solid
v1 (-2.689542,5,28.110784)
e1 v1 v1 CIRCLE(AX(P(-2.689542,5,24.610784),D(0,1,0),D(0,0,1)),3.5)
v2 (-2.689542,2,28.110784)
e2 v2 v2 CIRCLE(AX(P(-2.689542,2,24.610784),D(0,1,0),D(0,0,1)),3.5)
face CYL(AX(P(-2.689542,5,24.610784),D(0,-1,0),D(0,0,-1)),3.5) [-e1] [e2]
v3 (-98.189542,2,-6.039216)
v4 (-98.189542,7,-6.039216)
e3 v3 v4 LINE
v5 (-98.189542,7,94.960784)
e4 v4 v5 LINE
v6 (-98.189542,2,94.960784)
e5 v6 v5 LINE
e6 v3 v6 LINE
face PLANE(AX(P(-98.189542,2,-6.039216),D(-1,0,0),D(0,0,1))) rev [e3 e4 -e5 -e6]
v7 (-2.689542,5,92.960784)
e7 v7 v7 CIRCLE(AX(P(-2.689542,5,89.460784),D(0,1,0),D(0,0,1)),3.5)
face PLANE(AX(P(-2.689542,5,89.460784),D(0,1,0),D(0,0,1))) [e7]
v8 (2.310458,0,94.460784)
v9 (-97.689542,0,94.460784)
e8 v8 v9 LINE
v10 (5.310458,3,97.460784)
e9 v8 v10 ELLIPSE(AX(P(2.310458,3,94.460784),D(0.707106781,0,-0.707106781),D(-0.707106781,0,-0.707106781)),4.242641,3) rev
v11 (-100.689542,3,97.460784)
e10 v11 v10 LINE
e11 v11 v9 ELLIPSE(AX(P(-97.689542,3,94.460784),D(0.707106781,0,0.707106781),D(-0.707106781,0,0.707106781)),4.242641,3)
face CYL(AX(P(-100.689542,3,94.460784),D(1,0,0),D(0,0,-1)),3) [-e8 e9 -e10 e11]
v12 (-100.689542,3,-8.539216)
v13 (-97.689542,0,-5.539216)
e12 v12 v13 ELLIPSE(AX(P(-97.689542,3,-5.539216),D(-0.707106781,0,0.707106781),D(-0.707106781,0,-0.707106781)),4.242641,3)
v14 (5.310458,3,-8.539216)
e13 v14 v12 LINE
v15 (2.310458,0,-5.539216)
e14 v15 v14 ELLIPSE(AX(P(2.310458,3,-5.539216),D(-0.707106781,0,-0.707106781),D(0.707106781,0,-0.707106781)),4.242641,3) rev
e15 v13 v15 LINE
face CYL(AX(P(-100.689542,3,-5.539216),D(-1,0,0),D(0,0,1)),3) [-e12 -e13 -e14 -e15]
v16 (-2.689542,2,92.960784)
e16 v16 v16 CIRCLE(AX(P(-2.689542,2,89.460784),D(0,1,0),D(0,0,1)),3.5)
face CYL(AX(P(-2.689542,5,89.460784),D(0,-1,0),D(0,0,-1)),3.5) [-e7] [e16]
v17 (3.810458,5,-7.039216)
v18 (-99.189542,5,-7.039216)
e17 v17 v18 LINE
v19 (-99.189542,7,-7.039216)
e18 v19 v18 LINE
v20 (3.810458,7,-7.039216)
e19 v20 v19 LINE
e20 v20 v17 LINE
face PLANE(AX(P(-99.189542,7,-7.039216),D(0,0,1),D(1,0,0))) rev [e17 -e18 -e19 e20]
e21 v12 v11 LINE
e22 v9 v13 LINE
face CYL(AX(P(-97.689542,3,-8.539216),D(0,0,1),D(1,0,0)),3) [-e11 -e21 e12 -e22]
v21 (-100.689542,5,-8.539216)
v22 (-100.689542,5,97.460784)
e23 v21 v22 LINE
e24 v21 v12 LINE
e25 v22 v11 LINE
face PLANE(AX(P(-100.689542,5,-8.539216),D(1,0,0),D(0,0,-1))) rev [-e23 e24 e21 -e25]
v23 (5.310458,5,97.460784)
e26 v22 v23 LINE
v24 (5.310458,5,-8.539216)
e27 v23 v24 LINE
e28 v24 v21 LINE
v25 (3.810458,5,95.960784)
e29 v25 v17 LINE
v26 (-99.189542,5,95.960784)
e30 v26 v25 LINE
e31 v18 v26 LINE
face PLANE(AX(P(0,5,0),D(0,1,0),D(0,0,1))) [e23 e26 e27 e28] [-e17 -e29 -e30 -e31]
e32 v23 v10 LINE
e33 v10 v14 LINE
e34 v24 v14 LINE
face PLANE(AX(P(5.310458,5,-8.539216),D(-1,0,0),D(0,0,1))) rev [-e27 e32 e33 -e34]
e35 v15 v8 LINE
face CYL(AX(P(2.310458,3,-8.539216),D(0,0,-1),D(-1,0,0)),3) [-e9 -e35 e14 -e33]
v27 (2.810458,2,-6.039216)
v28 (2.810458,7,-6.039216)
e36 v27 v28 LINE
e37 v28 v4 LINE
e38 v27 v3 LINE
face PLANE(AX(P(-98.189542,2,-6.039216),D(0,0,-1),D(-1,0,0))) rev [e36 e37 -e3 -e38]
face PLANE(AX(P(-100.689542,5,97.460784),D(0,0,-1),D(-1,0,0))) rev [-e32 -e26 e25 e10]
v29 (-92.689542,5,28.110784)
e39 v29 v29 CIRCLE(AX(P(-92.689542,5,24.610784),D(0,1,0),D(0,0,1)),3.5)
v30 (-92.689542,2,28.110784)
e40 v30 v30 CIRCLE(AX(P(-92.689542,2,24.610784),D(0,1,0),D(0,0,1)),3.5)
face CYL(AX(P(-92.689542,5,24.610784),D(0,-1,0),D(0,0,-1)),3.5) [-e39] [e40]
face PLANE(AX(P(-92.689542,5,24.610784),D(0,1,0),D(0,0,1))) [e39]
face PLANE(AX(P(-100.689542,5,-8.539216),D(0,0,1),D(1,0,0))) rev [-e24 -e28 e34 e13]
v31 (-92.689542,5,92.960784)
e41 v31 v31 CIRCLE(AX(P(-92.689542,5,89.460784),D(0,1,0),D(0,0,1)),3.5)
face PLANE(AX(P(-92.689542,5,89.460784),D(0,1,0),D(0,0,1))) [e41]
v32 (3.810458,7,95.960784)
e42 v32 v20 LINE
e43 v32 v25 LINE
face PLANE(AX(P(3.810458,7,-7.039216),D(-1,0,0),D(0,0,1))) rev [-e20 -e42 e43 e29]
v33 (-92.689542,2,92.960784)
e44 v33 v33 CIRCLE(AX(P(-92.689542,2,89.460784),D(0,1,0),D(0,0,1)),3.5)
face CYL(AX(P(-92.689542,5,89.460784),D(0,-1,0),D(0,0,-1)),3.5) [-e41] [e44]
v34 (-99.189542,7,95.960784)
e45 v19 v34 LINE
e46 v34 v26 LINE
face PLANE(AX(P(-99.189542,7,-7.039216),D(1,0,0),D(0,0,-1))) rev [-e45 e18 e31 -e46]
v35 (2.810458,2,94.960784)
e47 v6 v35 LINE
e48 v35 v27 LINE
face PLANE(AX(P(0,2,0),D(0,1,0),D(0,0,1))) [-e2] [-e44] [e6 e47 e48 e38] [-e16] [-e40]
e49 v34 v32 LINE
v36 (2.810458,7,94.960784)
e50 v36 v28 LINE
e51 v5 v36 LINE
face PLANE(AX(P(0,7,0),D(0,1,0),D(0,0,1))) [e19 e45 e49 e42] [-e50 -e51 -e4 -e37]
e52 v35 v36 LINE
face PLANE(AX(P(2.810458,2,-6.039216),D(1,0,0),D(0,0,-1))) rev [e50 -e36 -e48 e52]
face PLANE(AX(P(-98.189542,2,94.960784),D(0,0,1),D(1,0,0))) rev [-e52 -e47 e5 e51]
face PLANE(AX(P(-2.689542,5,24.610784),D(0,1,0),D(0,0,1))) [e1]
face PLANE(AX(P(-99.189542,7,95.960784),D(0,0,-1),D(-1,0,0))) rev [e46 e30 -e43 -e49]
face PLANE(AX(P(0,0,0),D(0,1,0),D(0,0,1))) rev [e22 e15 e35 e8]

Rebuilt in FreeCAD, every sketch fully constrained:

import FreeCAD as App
import Part
import Sketcher

V = App.Vector
Q = App.Units.Quantity


def edges_at(feature, points):
    """Names of the edges that pass closest to the given points."""
    edges = feature.Shape.Edges
    near = lambda p: min(range(len(edges)), key=lambda i: edges[i].distToShape(Part.Vertex(*p))[0])
    return sorted({f"Edge{near(p) + 1}" for p in points})

doc = App.newDocument("Part")
body = doc.addObject("PartDesign::Body", "Body")

# Sketch on XZ plane
sketch1 = doc.addObject("Sketcher::SketchObject", "Sketch")
body.addObject(sketch1)
sketch1.AttachmentSupport = (doc.XZ_Plane, [""])
sketch1.MapMode = "FlatFace"
sketch1.addGeometry(Part.LineSegment(V(-101, -9, 0), V(-101, 97, 0)), False)
sketch1.addGeometry(Part.LineSegment(V(-101, 97, 0), V(5, 97, 0)), False)
sketch1.addGeometry(Part.LineSegment(V(5, 97, 0), V(5, -9, 0)), False)
sketch1.addGeometry(Part.LineSegment(V(5, -9, 0), V(-101, -9, 0)), False)
sketch1.addConstraint(Sketcher.Constraint("Coincident", 0, 2, 1, 1))
sketch1.addConstraint(Sketcher.Constraint("Coincident", 1, 2, 2, 1))
sketch1.addConstraint(Sketcher.Constraint("Coincident", 2, 2, 3, 1))
sketch1.addConstraint(Sketcher.Constraint("Coincident", 3, 2, 0, 1))
sketch1.addConstraint(Sketcher.Constraint("Vertical", 0))
sketch1.addConstraint(Sketcher.Constraint("Horizontal", 1))
sketch1.addConstraint(Sketcher.Constraint("Vertical", 2))
sketch1.addConstraint(Sketcher.Constraint("Horizontal", 3))
sketch1.addConstraint(Sketcher.Constraint("Equal", 3, 0))
sketch1.addConstraint(Sketcher.Constraint("DistanceX", 1, 1, 1, 2, Q("106 mm")))
sketch1.addConstraint(Sketcher.Constraint("DistanceX", 0, 2, -1, 1, Q("100.689542 mm")))
sketch1.addConstraint(Sketcher.Constraint("DistanceY", -1, 1, 0, 2, Q("97.460784 mm")))
pad1 = doc.addObject("PartDesign::Pad", "Pad")
body.addObject(pad1)
pad1.Profile = sketch1
pad1.Length = 5
pad1.Reversed = True

# Sketch on XZ plane
sketch2 = doc.addObject("Sketcher::SketchObject", "Sketch001")
body.addObject(sketch2)
sketch2.AttachmentSupport = (doc.XZ_Plane, [""])
sketch2.MapMode = "FlatFace"
sketch2.AttachmentOffset = App.Placement(V(0, 0, -5), App.Rotation())
sketch2.addGeometry(Part.LineSegment(V(-98, -6, 0), V(-98, 95, 0)), False)
sketch2.addGeometry(Part.LineSegment(V(-98, 95, 0), V(3, 95, 0)), False)
sketch2.addGeometry(Part.LineSegment(V(3, 95, 0), V(3, -6, 0)), False)
sketch2.addGeometry(Part.LineSegment(V(3, -6, 0), V(-98, -6, 0)), False)
sketch2.addConstraint(Sketcher.Constraint("Coincident", 0, 2, 1, 1))
sketch2.addConstraint(Sketcher.Constraint("Coincident", 1, 2, 2, 1))
sketch2.addConstraint(Sketcher.Constraint("Coincident", 2, 2, 3, 1))
sketch2.addConstraint(Sketcher.Constraint("Coincident", 3, 2, 0, 1))
sketch2.addConstraint(Sketcher.Constraint("Vertical", 0))
sketch2.addConstraint(Sketcher.Constraint("Horizontal", 1))
sketch2.addConstraint(Sketcher.Constraint("Vertical", 2))
sketch2.addConstraint(Sketcher.Constraint("Horizontal", 3))
sketch2.addConstraint(Sketcher.Constraint("Equal", 3, 0))
sketch2.addConstraint(Sketcher.Constraint("DistanceX", 1, 1, 1, 2, Q("101 mm")))
sketch2.addConstraint(Sketcher.Constraint("DistanceX", 0, 2, -1, 1, Q("98.189542 mm")))
sketch2.addConstraint(Sketcher.Constraint("DistanceY", -1, 1, 0, 2, Q("94.960784 mm")))
pocket1 = doc.addObject("PartDesign::Pocket", "Pocket")
body.addObject(pocket1)
pocket1.Profile = sketch2
pocket1.Length = 3
pocket1.Reversed = True

# Sketch on XZ plane
sketch3 = doc.addObject("Sketcher::SketchObject", "Sketch002")
body.addObject(sketch3)
sketch3.AttachmentSupport = (doc.XZ_Plane, [""])
sketch3.MapMode = "FlatFace"
sketch3.AttachmentOffset = App.Placement(V(0, 0, -2), App.Rotation())
sketch3.addGeometry(Part.Circle(V(-92.7, 24.6, 0), V(0, 0, 1), 3.5), False)
sketch3.addGeometry(Part.Circle(V(-92.7, 89.5, 0), V(0, 0, 1), 3.5), False)
sketch3.addGeometry(Part.Circle(V(-2.7, 89.5, 0), V(0, 0, 1), 3.5), False)
sketch3.addGeometry(Part.Circle(V(-2.7, 24.6, 0), V(0, 0, 1), 3.5), False)
sketch3.addConstraint(Sketcher.Constraint("Equal", 0, 1))
sketch3.addConstraint(Sketcher.Constraint("Equal", 1, 2))
sketch3.addConstraint(Sketcher.Constraint("Equal", 2, 3))
sketch3.addConstraint(Sketcher.Constraint("Horizontal", 1, 3, 2, 3))
sketch3.addConstraint(Sketcher.Constraint("Horizontal", 0, 3, 3, 3))
sketch3.addConstraint(Sketcher.Constraint("Vertical", 0, 3, 1, 3))
sketch3.addConstraint(Sketcher.Constraint("Vertical", 2, 3, 3, 3))
sketch3.addConstraint(Sketcher.Constraint("Diameter", 0, Q("7 mm")))
sketch3.addConstraint(Sketcher.Constraint("DistanceX", 1, 3, 2, 3, Q("90 mm")))
sketch3.addConstraint(Sketcher.Constraint("DistanceY", 0, 3, 1, 3, Q("64.85 mm")))
sketch3.addConstraint(Sketcher.Constraint("DistanceX", 0, 3, -1, 1, Q("92.689542 mm")))
sketch3.addConstraint(Sketcher.Constraint("DistanceY", -1, 1, 0, 3, Q("24.610784 mm")))
pad2 = doc.addObject("PartDesign::Pad", "Pad001")
body.addObject(pad2)
pad2.Profile = sketch3
pad2.Length = 3
pad2.Reversed = True
doc.recompute()

fillet = doc.addObject("PartDesign::Fillet", "Fillet")
body.addObject(fillet)
fillet.Base = (pad2, edges_at(pad2, [
    (-47.69, 0, 97.461),
    (-100.69, 0, 44.461),
    (-47.69, 0, -8.539),
    (5.31, 0, 44.461),
]))
fillet.Radius = 3

# Sketch on XZ plane
sketch4 = doc.addObject("Sketcher::SketchObject", "Sketch003")
body.addObject(sketch4)
sketch4.AttachmentSupport = (doc.XZ_Plane, [""])
sketch4.MapMode = "FlatFace"
sketch4.AttachmentOffset = App.Placement(V(0, 0, -5), App.Rotation())
sketch4.addGeometry(Part.LineSegment(V(-99, -7, 0), V(-99, 96, 0)), False)
sketch4.addGeometry(Part.LineSegment(V(-99, 96, 0), V(4, 96, 0)), False)
sketch4.addGeometry(Part.LineSegment(V(4, 96, 0), V(4, -7, 0)), False)
sketch4.addGeometry(Part.LineSegment(V(4, -7, 0), V(-99, -7, 0)), False)
sketch4.addGeometry(Part.LineSegment(V(3, 95, 0), V(-98, 95, 0)), False)
sketch4.addGeometry(Part.LineSegment(V(-98, 95, 0), V(-98, -6, 0)), False)
sketch4.addGeometry(Part.LineSegment(V(-98, -6, 0), V(3, -6, 0)), False)
sketch4.addGeometry(Part.LineSegment(V(3, -6, 0), V(3, 95, 0)), False)
sketch4.addConstraint(Sketcher.Constraint("Coincident", 0, 2, 1, 1))
sketch4.addConstraint(Sketcher.Constraint("Coincident", 1, 2, 2, 1))
sketch4.addConstraint(Sketcher.Constraint("Coincident", 2, 2, 3, 1))
sketch4.addConstraint(Sketcher.Constraint("Coincident", 3, 2, 0, 1))
sketch4.addConstraint(Sketcher.Constraint("Coincident", 4, 2, 5, 1))
sketch4.addConstraint(Sketcher.Constraint("Coincident", 5, 2, 6, 1))
sketch4.addConstraint(Sketcher.Constraint("Coincident", 6, 2, 7, 1))
sketch4.addConstraint(Sketcher.Constraint("Coincident", 7, 2, 4, 1))
sketch4.addConstraint(Sketcher.Constraint("Vertical", 0))
sketch4.addConstraint(Sketcher.Constraint("Horizontal", 1))
sketch4.addConstraint(Sketcher.Constraint("Vertical", 2))
sketch4.addConstraint(Sketcher.Constraint("Horizontal", 3))
sketch4.addConstraint(Sketcher.Constraint("Horizontal", 4))
sketch4.addConstraint(Sketcher.Constraint("Vertical", 5))
sketch4.addConstraint(Sketcher.Constraint("Horizontal", 6))
sketch4.addConstraint(Sketcher.Constraint("Vertical", 7))
sketch4.addConstraint(Sketcher.Constraint("Equal", 3, 0))
sketch4.addConstraint(Sketcher.Constraint("Equal", 6, 5))
sketch4.addConstraint(Sketcher.Constraint("DistanceX", 1, 1, 1, 2, Q("103 mm")))
sketch4.addConstraint(Sketcher.Constraint("DistanceX", 4, 2, 4, 1, Q("101 mm")))
sketch4.addConstraint(Sketcher.Constraint("DistanceX", 0, 2, 4, 2, Q("1 mm")))
sketch4.addConstraint(Sketcher.Constraint("DistanceY", 4, 2, 0, 2, Q("1 mm")))
sketch4.addConstraint(Sketcher.Constraint("DistanceX", 0, 2, -1, 1, Q("99.189542 mm")))
sketch4.addConstraint(Sketcher.Constraint("DistanceY", -1, 1, 0, 2, Q("95.960784 mm")))
pad3 = doc.addObject("PartDesign::Pad", "Pad002")
body.addObject(pad3)
pad3.Profile = sketch4
pad3.Length = 2
pad3.Reversed = True

doc.recompute()
